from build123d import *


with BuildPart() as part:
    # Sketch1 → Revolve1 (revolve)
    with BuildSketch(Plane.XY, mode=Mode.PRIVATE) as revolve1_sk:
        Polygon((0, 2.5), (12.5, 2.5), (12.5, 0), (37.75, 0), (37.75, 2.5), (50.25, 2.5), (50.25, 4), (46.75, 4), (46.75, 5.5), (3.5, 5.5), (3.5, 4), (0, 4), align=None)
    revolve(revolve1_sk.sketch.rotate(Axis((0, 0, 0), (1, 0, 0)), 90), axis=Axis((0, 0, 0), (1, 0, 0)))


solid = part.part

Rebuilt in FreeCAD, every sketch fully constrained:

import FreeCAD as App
import Part
import Sketcher


def add_polygon(sketch, points):
    """Adds a closed chain of lines whose ends are joined by coincident constraints."""
    first, n = sketch.GeometryCount, len(points)
    for a, b in zip(points, points[1:] + points[:1]):
        sketch.addGeometry(Part.LineSegment(App.Vector(*a, 0), App.Vector(*b, 0)), False)
    for i in range(n):
        sketch.addConstraint(Sketcher.Constraint("Coincident", first + i, 2, first + (i + 1) % n, 1))

doc = App.newDocument("Part")
body = doc.addObject("PartDesign::Body", "Body")

# Sketch on XY plane
sketch1 = body.newObject("Sketcher::SketchObject", "Sketch")
sketch1.AttachmentSupport = (doc.getObject("XY_Plane"), [""])
sketch1.MapMode = "FlatFace"
add_polygon(sketch1, [(0, 2.5), (12.5, 2.5), (12.5, 0), (37.8, 0), (37.8, 2.5), (50.2, 2.5), (50.2, 4), (46.8, 4), (46.8, 5.5), (3.5, 5.5), (3.5, 4), (0, 4)])  # lines 0-11
sketch1.addConstraint([
    Sketcher.Constraint("Horizontal", 0),
    Sketcher.Constraint("Vertical", 1),
    Sketcher.Constraint("Horizontal", 2),
    Sketcher.Constraint("Vertical", 3),
    Sketcher.Constraint("Horizontal", 4),
    Sketcher.Constraint("Vertical", 5),
    Sketcher.Constraint("Horizontal", 6),
    Sketcher.Constraint("Vertical", 7),
    Sketcher.Constraint("Horizontal", 8),
    Sketcher.Constraint("Vertical", 9),
    Sketcher.Constraint("Horizontal", 10),
    Sketcher.Constraint("Vertical", 11),
    Sketcher.Constraint("PointOnObject", 1, 2, -1),
    Sketcher.Constraint("PointOnObject", 10, 2, -2),
    Sketcher.Constraint("Horizontal", 0, 2, 3, 2),
    Sketcher.Constraint("Horizontal", 6, 2, 9, 2),
    Sketcher.Constraint("Equal", 0, 4),
    Sketcher.Constraint("Equal", 6, 10),
    Sketcher.Constraint("Equal", 5, 7),
    Sketcher.Constraint("DistanceX", 0, 1, 0, 2, 12.5),
    Sketcher.Constraint("DistanceX", 6, 2, 6, 1, 3.5),
    Sketcher.Constraint("DistanceY", 1, 2, 1, 1, 2.5),
    Sketcher.Constraint("DistanceY", 5, 1, 5, 2, 1.5),
    Sketcher.Constraint("DistanceX", 2, 1, 2, 2, 25.25),
])
revolution = body.newObject("PartDesign::Revolution", "Revolution")
revolution.Profile = sketch1
revolution.ReferenceAxis = (sketch1, ["H_Axis"])
revolution.Angle = 360

doc.recompute()
